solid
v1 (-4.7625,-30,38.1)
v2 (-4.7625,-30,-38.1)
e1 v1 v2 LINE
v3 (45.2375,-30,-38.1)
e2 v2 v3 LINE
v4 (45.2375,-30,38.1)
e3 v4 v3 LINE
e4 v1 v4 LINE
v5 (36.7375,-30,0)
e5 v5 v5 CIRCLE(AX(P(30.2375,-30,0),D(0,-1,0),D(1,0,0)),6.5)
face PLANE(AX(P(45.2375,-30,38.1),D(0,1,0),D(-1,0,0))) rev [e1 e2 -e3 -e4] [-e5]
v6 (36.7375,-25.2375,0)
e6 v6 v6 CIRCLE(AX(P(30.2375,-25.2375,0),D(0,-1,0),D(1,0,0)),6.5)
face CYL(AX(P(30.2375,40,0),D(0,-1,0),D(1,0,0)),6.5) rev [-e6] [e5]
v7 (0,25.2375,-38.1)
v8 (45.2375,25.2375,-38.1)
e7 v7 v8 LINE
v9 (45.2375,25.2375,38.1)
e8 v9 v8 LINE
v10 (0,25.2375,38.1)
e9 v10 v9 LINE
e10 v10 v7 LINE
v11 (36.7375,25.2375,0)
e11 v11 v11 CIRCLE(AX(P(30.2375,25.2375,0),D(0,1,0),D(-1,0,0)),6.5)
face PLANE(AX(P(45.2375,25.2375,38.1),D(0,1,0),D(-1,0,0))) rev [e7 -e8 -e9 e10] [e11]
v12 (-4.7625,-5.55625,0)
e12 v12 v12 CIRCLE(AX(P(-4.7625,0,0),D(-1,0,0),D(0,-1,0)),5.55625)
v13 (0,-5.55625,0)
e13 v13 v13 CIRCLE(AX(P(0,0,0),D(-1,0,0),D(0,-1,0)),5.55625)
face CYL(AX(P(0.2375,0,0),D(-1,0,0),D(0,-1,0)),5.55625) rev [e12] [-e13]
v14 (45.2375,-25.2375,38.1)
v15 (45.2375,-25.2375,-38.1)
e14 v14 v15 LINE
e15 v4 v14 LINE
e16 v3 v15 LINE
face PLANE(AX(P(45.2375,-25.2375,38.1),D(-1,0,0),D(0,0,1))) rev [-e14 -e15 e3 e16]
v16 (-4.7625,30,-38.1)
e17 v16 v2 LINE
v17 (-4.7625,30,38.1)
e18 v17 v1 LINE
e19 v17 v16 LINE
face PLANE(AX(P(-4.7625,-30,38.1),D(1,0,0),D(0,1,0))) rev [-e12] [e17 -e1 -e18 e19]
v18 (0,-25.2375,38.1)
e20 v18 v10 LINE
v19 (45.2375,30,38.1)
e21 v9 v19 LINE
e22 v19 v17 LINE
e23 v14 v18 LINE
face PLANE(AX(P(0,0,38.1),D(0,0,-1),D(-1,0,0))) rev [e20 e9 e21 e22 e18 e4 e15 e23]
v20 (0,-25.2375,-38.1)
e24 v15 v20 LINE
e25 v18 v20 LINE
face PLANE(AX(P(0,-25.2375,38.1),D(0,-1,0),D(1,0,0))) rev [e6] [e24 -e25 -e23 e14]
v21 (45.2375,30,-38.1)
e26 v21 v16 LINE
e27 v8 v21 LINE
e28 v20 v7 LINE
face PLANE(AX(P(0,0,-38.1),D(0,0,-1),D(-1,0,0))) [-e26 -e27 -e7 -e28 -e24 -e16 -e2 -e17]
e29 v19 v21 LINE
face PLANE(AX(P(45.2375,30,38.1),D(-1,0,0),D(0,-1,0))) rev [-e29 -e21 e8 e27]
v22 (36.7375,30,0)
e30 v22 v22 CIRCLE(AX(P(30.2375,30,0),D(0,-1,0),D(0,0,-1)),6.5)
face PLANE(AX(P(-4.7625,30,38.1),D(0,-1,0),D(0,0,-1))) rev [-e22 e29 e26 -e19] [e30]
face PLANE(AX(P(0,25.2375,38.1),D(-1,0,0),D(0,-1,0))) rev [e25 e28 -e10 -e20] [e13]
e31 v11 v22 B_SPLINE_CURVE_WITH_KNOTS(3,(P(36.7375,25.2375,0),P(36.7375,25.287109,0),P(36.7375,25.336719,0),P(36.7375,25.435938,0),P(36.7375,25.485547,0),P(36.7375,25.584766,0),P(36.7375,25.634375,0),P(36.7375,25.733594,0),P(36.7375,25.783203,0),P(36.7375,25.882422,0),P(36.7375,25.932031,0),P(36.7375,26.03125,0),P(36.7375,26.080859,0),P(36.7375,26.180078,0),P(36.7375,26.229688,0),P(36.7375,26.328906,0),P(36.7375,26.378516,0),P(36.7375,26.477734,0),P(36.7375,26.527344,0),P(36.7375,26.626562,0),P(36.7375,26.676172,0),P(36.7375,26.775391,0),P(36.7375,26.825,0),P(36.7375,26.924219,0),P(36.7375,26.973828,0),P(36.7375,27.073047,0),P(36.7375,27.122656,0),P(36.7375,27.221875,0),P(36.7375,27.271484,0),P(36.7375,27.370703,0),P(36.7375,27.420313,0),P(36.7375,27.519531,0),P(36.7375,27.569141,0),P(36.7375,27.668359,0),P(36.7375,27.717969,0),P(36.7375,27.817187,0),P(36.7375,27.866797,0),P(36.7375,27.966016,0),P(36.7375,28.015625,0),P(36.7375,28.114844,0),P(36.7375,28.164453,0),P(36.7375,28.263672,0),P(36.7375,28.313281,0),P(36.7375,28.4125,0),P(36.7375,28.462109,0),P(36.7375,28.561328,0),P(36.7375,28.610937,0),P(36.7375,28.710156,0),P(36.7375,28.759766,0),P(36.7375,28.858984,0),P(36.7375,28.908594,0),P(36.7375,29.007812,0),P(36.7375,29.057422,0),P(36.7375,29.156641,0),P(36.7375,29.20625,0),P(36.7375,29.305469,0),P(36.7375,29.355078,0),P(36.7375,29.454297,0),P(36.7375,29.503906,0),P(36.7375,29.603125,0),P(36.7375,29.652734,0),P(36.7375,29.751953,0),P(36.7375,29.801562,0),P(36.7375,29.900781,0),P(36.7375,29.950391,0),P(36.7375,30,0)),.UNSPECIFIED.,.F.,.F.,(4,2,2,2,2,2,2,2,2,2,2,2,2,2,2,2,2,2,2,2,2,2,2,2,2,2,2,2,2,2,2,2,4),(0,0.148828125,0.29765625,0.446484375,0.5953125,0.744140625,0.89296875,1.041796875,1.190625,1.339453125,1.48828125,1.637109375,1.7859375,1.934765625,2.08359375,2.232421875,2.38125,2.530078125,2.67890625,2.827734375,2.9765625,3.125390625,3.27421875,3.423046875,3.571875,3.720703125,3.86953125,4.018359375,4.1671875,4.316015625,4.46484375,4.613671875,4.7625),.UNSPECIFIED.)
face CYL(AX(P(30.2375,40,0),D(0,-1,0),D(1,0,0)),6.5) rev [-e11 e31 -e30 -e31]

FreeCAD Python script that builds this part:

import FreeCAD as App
import Part
import Sketcher


def add_polygon(sketch, points):
    """Adds a closed chain of lines whose ends are joined by coincident constraints."""
    first, n = sketch.GeometryCount, len(points)
    for a, b in zip(points, points[1:] + points[:1]):
        sketch.addGeometry(Part.LineSegment(App.Vector(*a, 0), App.Vector(*b, 0)), False)
    for i in range(n):
        sketch.addConstraint(Sketcher.Constraint("Coincident", first + i, 2, first + (i + 1) % n, 1))

doc = App.newDocument("Part")
body = doc.addObject("PartDesign::Body", "Body")

# Sketch on XY plane
sketch1 = doc.addObject("Sketcher::SketchObject", "Sketch")
body.addObject(sketch1)
sketch1.AttachmentSupport = (doc.XY_Plane, [""])
sketch1.MapMode = "FlatFace"
add_polygon(sketch1, [(0, 25.2), (45.2, 25.2), (45.2, 30), (-4.8, 30), (-4.8, -30), (45.2, -30), (45.2, -25.2), (0, -25.2)])  # lines 0-7
sketch1.addConstraint([
    Sketcher.Constraint("Horizontal", 0),
    Sketcher.Constraint("Vertical", 1),
    Sketcher.Constraint("Horizontal", 2),
    Sketcher.Constraint("Vertical", 3),
    Sketcher.Constraint("Horizontal", 4),
    Sketcher.Constraint("Vertical", 5),
    Sketcher.Constraint("Horizontal", 6),
    Sketcher.Constraint("Vertical", 7),
    Sketcher.Constraint("Symmetric", 6, 2, 7, 2, -1, 1),
    Sketcher.Constraint("Symmetric", 1, 2, 4, 2, -1),
    Sketcher.Constraint("DistanceX", 2, 2, 2, 1, 50.0),
    Sketcher.Constraint("DistanceY", 3, 2, 3, 1, 60.0),
    Sketcher.Constraint("DistanceY", 7, 1, 7, 2, 50.475),
    Sketcher.Constraint("DistanceX", 0, 1, 0, 2, 45.2375),
])
pad1 = doc.addObject("PartDesign::Pad", "Pad")
body.addObject(pad1)
pad1.Profile = sketch1
pad1.Length = 76.2
pad1.Midplane = True

# Sketch on YZ plane
sketch2 = doc.addObject("Sketcher::SketchObject", "Sketch001")
body.addObject(sketch2)
sketch2.AttachmentSupport = (doc.YZ_Plane, [""])
sketch2.MapMode = "FlatFace"
sketch2.AttachmentOffset = App.Placement(App.Vector(0, 0, -4.7625), App.Rotation())
sketch2.addGeometry(Part.Circle(App.Vector(0, 0, 0), App.Vector(0, 0, 1), 6), False)
sketch2.addConstraint([
    Sketcher.Constraint("Coincident", 0, 3, -1, 1),
    Sketcher.Constraint("Diameter", 0, 11.1125),
])
pocket1 = doc.addObject("PartDesign::Pocket", "Pocket")
body.addObject(pocket1)
pocket1.Profile = sketch2
pocket1.Length = 5
pocket1.Reversed = True

# Sketch on XZ plane
sketch3 = doc.addObject("Sketcher::SketchObject", "Sketch002")
body.addObject(sketch3)
sketch3.AttachmentSupport = (doc.XZ_Plane, [""])
sketch3.MapMode = "FlatFace"
sketch3.AttachmentOffset = App.Placement(App.Vector(0, 0, 30), App.Rotation())
sketch3.addGeometry(Part.Circle(App.Vector(30, 0, 0), App.Vector(0, 0, 1), 6), False)
sketch3.addConstraint([
    Sketcher.Constraint("PointOnObject", 0, 3, -1),
    Sketcher.Constraint("Diameter", 0, 13.0),
    Sketcher.Constraint("DistanceX", -1, 1, 0, 3, 30.2375),
])
pocket2 = doc.addObject("PartDesign::Pocket", "Pocket001")
body.addObject(pocket2)
pocket2.Profile = sketch3
pocket2.Length = 70

doc.recompute()
